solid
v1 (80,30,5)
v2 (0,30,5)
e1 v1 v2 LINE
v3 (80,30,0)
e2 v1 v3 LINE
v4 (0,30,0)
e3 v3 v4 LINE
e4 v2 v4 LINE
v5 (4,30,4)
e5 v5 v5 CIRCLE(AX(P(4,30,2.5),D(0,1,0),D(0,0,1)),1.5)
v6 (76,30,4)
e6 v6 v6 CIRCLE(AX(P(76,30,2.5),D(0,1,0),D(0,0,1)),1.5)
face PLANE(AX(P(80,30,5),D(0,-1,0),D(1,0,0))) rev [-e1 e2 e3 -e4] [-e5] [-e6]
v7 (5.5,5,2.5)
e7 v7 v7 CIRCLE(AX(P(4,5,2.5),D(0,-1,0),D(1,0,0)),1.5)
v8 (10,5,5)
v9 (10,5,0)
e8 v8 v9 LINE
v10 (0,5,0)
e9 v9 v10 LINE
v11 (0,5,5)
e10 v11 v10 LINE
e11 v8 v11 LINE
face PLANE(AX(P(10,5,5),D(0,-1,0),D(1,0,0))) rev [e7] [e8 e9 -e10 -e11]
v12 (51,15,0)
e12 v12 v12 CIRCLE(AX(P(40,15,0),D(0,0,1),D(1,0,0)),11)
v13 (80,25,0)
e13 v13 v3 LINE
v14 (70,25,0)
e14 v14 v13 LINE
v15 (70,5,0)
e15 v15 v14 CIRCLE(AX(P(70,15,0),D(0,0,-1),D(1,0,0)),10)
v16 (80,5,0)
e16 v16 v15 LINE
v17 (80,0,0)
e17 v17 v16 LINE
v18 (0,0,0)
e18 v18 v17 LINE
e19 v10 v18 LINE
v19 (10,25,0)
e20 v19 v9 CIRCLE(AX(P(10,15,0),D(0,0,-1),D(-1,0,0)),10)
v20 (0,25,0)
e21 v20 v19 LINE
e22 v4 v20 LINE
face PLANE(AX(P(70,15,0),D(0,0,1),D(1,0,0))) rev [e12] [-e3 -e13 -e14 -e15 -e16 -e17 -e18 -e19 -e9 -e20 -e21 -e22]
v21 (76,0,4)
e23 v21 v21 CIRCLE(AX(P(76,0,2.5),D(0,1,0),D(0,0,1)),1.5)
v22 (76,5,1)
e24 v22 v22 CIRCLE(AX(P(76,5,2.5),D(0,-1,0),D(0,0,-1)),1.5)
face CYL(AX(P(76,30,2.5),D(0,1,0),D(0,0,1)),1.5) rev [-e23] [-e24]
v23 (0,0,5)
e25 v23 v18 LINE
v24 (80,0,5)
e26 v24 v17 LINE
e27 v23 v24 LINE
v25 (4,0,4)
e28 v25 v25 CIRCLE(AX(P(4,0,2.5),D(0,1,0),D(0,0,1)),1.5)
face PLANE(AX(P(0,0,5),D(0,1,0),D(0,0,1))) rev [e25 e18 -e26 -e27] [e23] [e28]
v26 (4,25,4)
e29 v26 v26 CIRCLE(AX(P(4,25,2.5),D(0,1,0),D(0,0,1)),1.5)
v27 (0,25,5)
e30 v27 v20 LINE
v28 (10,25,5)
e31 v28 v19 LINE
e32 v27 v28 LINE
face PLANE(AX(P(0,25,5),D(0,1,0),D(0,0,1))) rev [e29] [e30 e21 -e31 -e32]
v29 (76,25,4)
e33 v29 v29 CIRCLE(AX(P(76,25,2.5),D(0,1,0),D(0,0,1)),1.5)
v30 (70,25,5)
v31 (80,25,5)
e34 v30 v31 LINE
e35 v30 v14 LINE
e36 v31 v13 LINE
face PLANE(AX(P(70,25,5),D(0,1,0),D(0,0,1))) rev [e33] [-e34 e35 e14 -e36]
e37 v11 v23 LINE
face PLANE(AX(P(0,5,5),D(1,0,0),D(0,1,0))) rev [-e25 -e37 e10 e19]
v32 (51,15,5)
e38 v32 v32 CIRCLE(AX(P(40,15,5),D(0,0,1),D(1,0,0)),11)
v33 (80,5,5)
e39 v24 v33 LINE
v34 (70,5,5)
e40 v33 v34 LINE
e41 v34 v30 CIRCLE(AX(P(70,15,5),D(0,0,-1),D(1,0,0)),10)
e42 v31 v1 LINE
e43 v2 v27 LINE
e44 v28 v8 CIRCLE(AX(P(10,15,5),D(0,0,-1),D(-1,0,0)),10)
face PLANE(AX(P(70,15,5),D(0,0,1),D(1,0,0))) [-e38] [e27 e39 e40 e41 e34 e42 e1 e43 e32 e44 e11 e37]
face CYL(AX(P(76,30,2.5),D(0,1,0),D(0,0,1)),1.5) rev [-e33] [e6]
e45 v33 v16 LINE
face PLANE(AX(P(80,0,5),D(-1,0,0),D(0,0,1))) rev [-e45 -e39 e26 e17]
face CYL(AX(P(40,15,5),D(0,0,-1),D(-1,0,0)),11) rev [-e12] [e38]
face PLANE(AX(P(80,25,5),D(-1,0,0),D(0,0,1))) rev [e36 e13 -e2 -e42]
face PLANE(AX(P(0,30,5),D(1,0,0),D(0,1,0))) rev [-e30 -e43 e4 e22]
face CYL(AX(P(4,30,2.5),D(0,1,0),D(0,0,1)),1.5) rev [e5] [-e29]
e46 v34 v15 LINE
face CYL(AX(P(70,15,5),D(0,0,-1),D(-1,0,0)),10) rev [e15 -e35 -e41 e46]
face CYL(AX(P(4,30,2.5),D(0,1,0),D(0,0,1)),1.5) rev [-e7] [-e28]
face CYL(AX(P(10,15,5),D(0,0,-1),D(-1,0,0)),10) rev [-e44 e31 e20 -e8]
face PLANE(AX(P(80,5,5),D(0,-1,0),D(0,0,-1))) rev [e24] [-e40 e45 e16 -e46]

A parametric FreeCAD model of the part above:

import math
import FreeCAD as App
import Part
import Sketcher

V = App.Vector

doc = App.newDocument("Part")
body = doc.addObject("PartDesign::Body", "Body")

sketch1 = doc.addObject("Sketcher::SketchObject", "Sketch")
body.addObject(sketch1)
sketch1.AttachmentSupport = (doc.XY_Plane, [""])
sketch1.MapMode = "FlatFace"
sketch1.addGeometry(Part.LineSegment(V(0, 0, 0), V(80, 0, 0)), False)
sketch1.addGeometry(Part.LineSegment(V(80, 0, 0), V(80, 5, 0)), False)
sketch1.addGeometry(Part.LineSegment(V(80, 5, 0), V(70, 5, 0)), False)
sketch1.addGeometry(Part.ArcOfCircle(Part.Circle(V(70, 15, 0), V(0, 0, 1), 10), math.radians(90), math.radians(270)), False)
sketch1.addGeometry(Part.LineSegment(V(70, 25, 0), V(80, 25, 0)), False)
sketch1.addGeometry(Part.LineSegment(V(80, 25, 0), V(80, 30, 0)), False)
sketch1.addGeometry(Part.LineSegment(V(80, 30, 0), V(0, 30, 0)), False)
sketch1.addGeometry(Part.LineSegment(V(0, 30, 0), V(0, 25, 0)), False)
sketch1.addGeometry(Part.LineSegment(V(0, 25, 0), V(10, 25, 0)), False)
sketch1.addGeometry(Part.ArcOfCircle(Part.Circle(V(10, 15, 0), V(0, 0, 1), 10), math.radians(-90), math.radians(90)), False)
sketch1.addGeometry(Part.LineSegment(V(10, 5, 0), V(0, 5, 0)), False)
sketch1.addGeometry(Part.LineSegment(V(0, 5, 0), V(0, 0, 0)), False)
sketch1.addGeometry(Part.Circle(V(40, 15, 0), V(0, 0, 1), 11), False)
sketch1.addConstraint(Sketcher.Constraint("Coincident", 0, 2, 1, 1))
sketch1.addConstraint(Sketcher.Constraint("Coincident", 1, 2, 2, 1))
sketch1.addConstraint(Sketcher.Constraint("Tangent", 2, 2, 3, 2))
sketch1.addConstraint(Sketcher.Constraint("Tangent", 3, 1, 4, 1))
sketch1.addConstraint(Sketcher.Constraint("Coincident", 4, 2, 5, 1))
sketch1.addConstraint(Sketcher.Constraint("Coincident", 5, 2, 6, 1))
sketch1.addConstraint(Sketcher.Constraint("Coincident", 6, 2, 7, 1))
sketch1.addConstraint(Sketcher.Constraint("Coincident", 7, 2, 8, 1))
sketch1.addConstraint(Sketcher.Constraint("Tangent", 8, 2, 9, 2))
sketch1.addConstraint(Sketcher.Constraint("Tangent", 9, 1, 10, 1))
sketch1.addConstraint(Sketcher.Constraint("Coincident", 10, 2, 11, 1))
sketch1.addConstraint(Sketcher.Constraint("Coincident", 11, 2, 0, 1))
sketch1.addConstraint(Sketcher.Constraint("Horizontal", 0))
sketch1.addConstraint(Sketcher.Constraint("Vertical", 1))
sketch1.addConstraint(Sketcher.Constraint("Horizontal", 2))
sketch1.addConstraint(Sketcher.Constraint("Horizontal", 4))
sketch1.addConstraint(Sketcher.Constraint("Vertical", 5))
sketch1.addConstraint(Sketcher.Constraint("Horizontal", 6))
sketch1.addConstraint(Sketcher.Constraint("Vertical", 7))
sketch1.addConstraint(Sketcher.Constraint("Horizontal", 8))
sketch1.addConstraint(Sketcher.Constraint("Horizontal", 10))
sketch1.addConstraint(Sketcher.Constraint("Vertical", 11))
sketch1.addConstraint(Sketcher.Constraint("Coincident", 11, 2, -1, 1))
sketch1.addConstraint(Sketcher.Constraint("Equal", 3, 9))
sketch1.addConstraint(Sketcher.Constraint("PointOnObject", 6, 2, -2))
sketch1.addConstraint(Sketcher.Constraint("Horizontal", 3, 3, 9, 3))
sketch1.addConstraint(Sketcher.Constraint("Horizontal", 9, 3, 12, 3))
sketch1.addConstraint(Sketcher.Constraint("Vertical", 1, 2, 4, 2))
sketch1.addConstraint(Sketcher.Constraint("Equal", 4, 8))
sketch1.addConstraint(Sketcher.Constraint("Equal", 1, 5))
sketch1.addConstraint(Sketcher.Constraint("Diameter", 12, 22.0))
sketch1.addConstraint(Sketcher.Constraint("Radius", 3, 10.0))
sketch1.addConstraint(Sketcher.Constraint("DistanceX", 0, 1, 0, 2, 80.0))
sketch1.addConstraint(Sketcher.Constraint("DistanceX", 2, 2, 2, 1, 10.0))
sketch1.addConstraint(Sketcher.Constraint("DistanceY", 1, 1, 1, 2, 5.0))
sketch1.addConstraint(Sketcher.Constraint("DistanceX", -1, 1, 12, 3, 40.0))
pad1 = doc.addObject("PartDesign::Pad", "Pad")
body.addObject(pad1)
pad1.Profile = sketch1
pad1.Length = 5

sketch2 = doc.addObject("Sketcher::SketchObject", "Sketch001")
body.addObject(sketch2)
sketch2.AttachmentSupport = (doc.XZ_Plane, [""])
sketch2.MapMode = "FlatFace"
sketch2.AttachmentOffset = App.Placement(V(0, 0, -30), App.Rotation())
sketch2.addGeometry(Part.Circle(V(4, 2.5, 0), V(0, 0, 1), 1.5), False)
sketch2.addGeometry(Part.Circle(V(76, 2.5, 0), V(0, 0, 1), 1.5), False)
sketch2.addConstraint(Sketcher.Constraint("Equal", 0, 1))
sketch2.addConstraint(Sketcher.Constraint("Horizontal", 0, 3, 1, 3))
sketch2.addConstraint(Sketcher.Constraint("Diameter", 0, 3.0))
sketch2.addConstraint(Sketcher.Constraint("DistanceX", -1, 1, 0, 3, 4.0))
sketch2.addConstraint(Sketcher.Constraint("DistanceX", -1, 1, 1, 3, 76.0))
sketch2.addConstraint(Sketcher.Constraint("DistanceY", -1, 1, 0, 3, 2.5))
doc.recompute()
hole = doc.addObject("PartDesign::Hole", "Hole")
body.addObject(hole)
hole.Profile = sketch2
hole.ThreadType = "None"
hole.Diameter = 3
hole.DepthType = "ThroughAll"
hole.Reversed = True

doc.recompute()
